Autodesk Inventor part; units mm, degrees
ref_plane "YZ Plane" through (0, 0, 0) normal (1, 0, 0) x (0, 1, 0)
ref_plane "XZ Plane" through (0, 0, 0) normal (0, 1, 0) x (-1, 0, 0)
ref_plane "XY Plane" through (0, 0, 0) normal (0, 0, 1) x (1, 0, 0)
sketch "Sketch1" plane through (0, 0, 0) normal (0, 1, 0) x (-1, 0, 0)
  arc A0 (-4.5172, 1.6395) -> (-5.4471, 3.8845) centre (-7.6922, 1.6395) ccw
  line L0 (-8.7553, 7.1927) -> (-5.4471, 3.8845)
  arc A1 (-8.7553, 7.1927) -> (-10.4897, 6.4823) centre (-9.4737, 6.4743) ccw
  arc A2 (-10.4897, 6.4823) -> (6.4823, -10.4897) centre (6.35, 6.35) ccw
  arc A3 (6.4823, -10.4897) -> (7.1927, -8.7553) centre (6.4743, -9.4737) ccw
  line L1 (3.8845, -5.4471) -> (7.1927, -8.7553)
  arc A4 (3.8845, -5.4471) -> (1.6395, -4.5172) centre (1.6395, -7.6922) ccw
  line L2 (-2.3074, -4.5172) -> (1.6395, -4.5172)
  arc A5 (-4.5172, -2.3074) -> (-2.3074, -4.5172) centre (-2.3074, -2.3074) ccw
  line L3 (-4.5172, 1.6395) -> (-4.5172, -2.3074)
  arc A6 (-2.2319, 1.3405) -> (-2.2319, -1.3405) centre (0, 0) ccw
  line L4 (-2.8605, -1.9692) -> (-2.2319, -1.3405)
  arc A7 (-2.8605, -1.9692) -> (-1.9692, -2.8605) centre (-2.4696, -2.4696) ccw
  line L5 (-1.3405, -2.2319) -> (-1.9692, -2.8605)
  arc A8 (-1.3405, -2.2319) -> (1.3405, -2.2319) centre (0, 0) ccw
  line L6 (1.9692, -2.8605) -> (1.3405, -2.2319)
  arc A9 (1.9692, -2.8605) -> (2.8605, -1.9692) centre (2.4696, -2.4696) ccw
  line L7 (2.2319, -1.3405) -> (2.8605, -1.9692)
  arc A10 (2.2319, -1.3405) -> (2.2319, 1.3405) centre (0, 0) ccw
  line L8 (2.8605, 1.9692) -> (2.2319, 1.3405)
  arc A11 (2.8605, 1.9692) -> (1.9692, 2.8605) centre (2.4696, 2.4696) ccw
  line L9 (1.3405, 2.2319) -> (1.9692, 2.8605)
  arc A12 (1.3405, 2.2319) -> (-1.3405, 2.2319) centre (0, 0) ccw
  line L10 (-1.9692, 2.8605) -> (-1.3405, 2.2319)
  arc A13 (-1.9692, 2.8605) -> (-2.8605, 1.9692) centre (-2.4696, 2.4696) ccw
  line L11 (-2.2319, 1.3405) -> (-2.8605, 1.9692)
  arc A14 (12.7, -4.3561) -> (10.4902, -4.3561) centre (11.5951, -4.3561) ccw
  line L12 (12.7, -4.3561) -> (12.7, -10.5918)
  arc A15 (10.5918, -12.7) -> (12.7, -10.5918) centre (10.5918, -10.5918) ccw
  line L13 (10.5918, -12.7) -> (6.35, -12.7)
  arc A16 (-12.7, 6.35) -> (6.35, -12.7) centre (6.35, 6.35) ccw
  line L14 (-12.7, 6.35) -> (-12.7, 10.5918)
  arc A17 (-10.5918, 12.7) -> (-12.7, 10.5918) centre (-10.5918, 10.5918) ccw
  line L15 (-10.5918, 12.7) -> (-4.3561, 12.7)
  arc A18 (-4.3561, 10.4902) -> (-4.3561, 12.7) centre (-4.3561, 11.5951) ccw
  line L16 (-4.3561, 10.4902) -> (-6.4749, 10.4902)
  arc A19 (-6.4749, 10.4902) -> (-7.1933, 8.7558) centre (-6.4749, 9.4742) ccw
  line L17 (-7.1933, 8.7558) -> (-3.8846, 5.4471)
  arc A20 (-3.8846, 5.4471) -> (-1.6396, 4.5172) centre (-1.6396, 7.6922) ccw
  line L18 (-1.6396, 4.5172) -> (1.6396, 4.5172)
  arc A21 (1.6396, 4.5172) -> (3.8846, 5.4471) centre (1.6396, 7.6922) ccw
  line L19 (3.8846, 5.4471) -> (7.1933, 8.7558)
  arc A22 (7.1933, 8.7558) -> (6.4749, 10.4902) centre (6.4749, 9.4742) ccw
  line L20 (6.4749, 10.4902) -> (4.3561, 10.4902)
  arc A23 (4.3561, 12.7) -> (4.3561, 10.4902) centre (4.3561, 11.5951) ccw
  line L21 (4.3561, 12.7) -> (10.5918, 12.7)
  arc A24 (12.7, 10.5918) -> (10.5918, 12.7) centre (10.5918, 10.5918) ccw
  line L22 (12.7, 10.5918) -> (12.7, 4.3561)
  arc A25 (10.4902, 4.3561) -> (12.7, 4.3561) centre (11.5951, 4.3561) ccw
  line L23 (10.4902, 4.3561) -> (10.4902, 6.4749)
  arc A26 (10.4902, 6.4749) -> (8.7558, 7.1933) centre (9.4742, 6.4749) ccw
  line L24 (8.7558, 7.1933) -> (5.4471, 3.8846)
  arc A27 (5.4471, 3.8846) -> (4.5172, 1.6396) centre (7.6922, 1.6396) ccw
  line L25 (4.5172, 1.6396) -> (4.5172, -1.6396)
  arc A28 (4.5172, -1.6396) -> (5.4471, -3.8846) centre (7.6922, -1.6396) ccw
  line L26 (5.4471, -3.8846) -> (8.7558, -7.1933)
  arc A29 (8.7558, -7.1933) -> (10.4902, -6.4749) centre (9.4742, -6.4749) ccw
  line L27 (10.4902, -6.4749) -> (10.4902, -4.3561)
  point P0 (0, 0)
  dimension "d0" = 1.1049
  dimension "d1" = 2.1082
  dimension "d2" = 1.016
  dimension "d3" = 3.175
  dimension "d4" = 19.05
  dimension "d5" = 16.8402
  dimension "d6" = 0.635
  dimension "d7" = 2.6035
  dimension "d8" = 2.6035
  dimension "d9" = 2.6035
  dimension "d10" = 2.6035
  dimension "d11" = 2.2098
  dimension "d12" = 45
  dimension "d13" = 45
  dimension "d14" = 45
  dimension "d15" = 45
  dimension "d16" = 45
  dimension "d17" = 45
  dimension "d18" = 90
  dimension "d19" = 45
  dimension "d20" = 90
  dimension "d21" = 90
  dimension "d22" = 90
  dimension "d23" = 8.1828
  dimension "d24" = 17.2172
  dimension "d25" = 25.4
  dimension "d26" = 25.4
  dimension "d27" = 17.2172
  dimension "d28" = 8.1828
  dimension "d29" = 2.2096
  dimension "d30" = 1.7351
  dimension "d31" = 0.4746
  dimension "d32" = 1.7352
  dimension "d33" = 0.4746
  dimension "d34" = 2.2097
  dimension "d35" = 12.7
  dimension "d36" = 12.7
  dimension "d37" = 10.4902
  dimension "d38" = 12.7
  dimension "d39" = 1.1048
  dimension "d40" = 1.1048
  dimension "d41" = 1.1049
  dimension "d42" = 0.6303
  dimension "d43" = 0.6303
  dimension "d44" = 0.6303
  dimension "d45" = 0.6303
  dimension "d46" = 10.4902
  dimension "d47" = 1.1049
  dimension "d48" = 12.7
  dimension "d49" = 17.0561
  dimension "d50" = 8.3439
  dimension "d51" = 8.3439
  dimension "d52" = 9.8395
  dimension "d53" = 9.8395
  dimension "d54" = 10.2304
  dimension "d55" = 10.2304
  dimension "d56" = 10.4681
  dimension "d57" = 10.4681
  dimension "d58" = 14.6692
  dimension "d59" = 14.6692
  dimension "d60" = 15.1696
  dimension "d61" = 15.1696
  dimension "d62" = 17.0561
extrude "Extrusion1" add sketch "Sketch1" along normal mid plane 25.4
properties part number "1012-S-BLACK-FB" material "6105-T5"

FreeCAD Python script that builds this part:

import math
import FreeCAD as App
import Part
import Sketcher
Q = App.Units.Quantity

doc = App.newDocument("Part")
params = doc.addObject("Spreadsheet::Sheet", "Params")
for row, (alias, value) in enumerate([
    ("sketch1_radius", "0.04 in"),
    ("sketch1_radius2", "0.75 in"),
    ("sketch1_radius3", "0.125 in"),
    ("sketch1_radius4", "0.083 in"),
    ("sketch1_radius5", "0.087 in"),
    ("pad1_length", "1 in"),
], start=1):
    params.set(f"A{row}", alias)
    params.set(f"B{row}", "=" + value)
    params.setAlias(f"B{row}", alias)

body = doc.addObject("PartDesign::Body", "Body")

sketch1 = body.newObject("Sketcher::SketchObject", "Sketch")
sketch1.AttachmentSupport = (doc.getObject("XZ_Plane"), [""])
sketch1.MapMode = "FlatFace"
sketch1.addGeometry([
    Part.LineSegment(App.Vector(-12.7, -10.6, 0), App.Vector(-12.7, -4.4, 0)),
    Part.ArcOfCircle(Part.Circle(App.Vector(-11.6, -4.4, 0), App.Vector(0, 0, 1), 1.1), math.radians(0), math.radians(180)),
    Part.LineSegment(App.Vector(-10.5, -4.4, 0), App.Vector(-10.5, -6.5, 0)),
    Part.ArcOfCircle(Part.Circle(App.Vector(-9.5, -6.5, 0), App.Vector(0, 0, 1), 1), math.radians(180), math.radians(315)),
    Part.LineSegment(App.Vector(-8.8, -7.2, 0), App.Vector(-5.4, -3.9, 0)),
    Part.ArcOfCircle(Part.Circle(App.Vector(-7.7, -1.6, 0), App.Vector(0, 0, 1), 3.2), math.radians(-45), math.radians(0)),
    Part.LineSegment(App.Vector(-4.5, -1.6, 0), App.Vector(-4.5, 1.6, 0)),
    Part.ArcOfCircle(Part.Circle(App.Vector(-7.7, 1.6, 0), App.Vector(0, 0, 1), 3.2), math.radians(0), math.radians(45)),
    Part.LineSegment(App.Vector(-5.4, 3.9, 0), App.Vector(-8.8, 7.2, 0)),
    Part.ArcOfCircle(Part.Circle(App.Vector(-9.5, 6.5, 0), App.Vector(0, 0, 1), 1), math.radians(45), math.radians(180)),
    Part.LineSegment(App.Vector(-10.5, 6.5, 0), App.Vector(-10.5, 4.4, 0)),
    Part.ArcOfCircle(Part.Circle(App.Vector(-11.6, 4.4, 0), App.Vector(0, 0, 1), 1.1), math.radians(180), math.radians(360)),
    Part.LineSegment(App.Vector(-12.7, 4.4, 0), App.Vector(-12.7, 10.6, 0)),
    Part.ArcOfCircle(Part.Circle(App.Vector(-10.6, 10.6, 0), App.Vector(0, 0, 1), 2.1), math.radians(90), math.radians(180)),
    Part.LineSegment(App.Vector(-10.6, 12.7, 0), App.Vector(-4.4, 12.7, 0)),
    Part.ArcOfCircle(Part.Circle(App.Vector(-4.4, 11.6, 0), App.Vector(0, 0, 1), 1.1), math.radians(-90), math.radians(90)),
    Part.LineSegment(App.Vector(-4.4, 10.5, 0), App.Vector(-6.5, 10.5, 0)),
    Part.ArcOfCircle(Part.Circle(App.Vector(-6.5, 9.5, 0), App.Vector(0, 0, 1), 1), math.radians(90), math.radians(225)),
    Part.LineSegment(App.Vector(-7.2, 8.8, 0), App.Vector(-3.9, 5.4, 0)),
    Part.ArcOfCircle(Part.Circle(App.Vector(-1.6, 7.7, 0), App.Vector(0, 0, 1), 3.2), math.radians(-135), math.radians(-90)),
    Part.LineSegment(App.Vector(-1.6, 4.5, 0), App.Vector(1.6, 4.5, 0)),
    Part.ArcOfCircle(Part.Circle(App.Vector(1.6, 7.7, 0), App.Vector(0, 0, 1), 3.2), math.radians(-90), math.radians(-45)),
    Part.LineSegment(App.Vector(3.9, 5.4, 0), App.Vector(7.2, 8.8, 0)),
    Part.ArcOfCircle(Part.Circle(App.Vector(6.5, 9.5, 0), App.Vector(0, 0, 1), 1), math.radians(-45), math.radians(90)),
    Part.LineSegment(App.Vector(6.5, 10.5, 0), App.Vector(4.4, 10.5, 0)),
    Part.ArcOfCircle(Part.Circle(App.Vector(4.4, 11.6, 0), App.Vector(0, 0, 1), 1.1), math.radians(90), math.radians(270)),
    Part.LineSegment(App.Vector(4.4, 12.7, 0), App.Vector(10.6, 12.7, 0)),
    Part.ArcOfCircle(Part.Circle(App.Vector(10.6, 10.6, 0), App.Vector(0, 0, 1), 2.1), math.radians(0), math.radians(90)),
    Part.LineSegment(App.Vector(12.7, 10.6, 0), App.Vector(12.7, 6.3, 0)),
    Part.ArcOfCircle(Part.Circle(App.Vector(-6.3, 6.3, 0), App.Vector(0, 0, 1), 19), math.radians(-90), math.radians(0)),
    Part.LineSegment(App.Vector(-6.3, -12.7, 0), App.Vector(-10.6, -12.7, 0)),
    Part.ArcOfCircle(Part.Circle(App.Vector(-10.6, -10.6, 0), App.Vector(0, 0, 1), 2.1), math.radians(180), math.radians(270)),
    Part.ArcOfCircle(Part.Circle(App.Vector(7.7, 1.6, 0), App.Vector(0, 0, 1), 3.2), math.radians(135), math.radians(180)),
    Part.LineSegment(App.Vector(4.5, 1.6, 0), App.Vector(4.5, -2.3, 0)),
    Part.ArcOfCircle(Part.Circle(App.Vector(2.3, -2.3, 0), App.Vector(0, 0, 1), 2.2), math.radians(-90), math.radians(0)),
    Part.LineSegment(App.Vector(2.3, -4.5, 0), App.Vector(-1.6, -4.5, 0)),
    Part.ArcOfCircle(Part.Circle(App.Vector(-1.6, -7.7, 0), App.Vector(0, 0, 1), 3.2), math.radians(90), math.radians(135)),
    Part.LineSegment(App.Vector(-3.9, -5.4, 0), App.Vector(-7.2, -8.8, 0)),
    Part.ArcOfCircle(Part.Circle(App.Vector(-6.5, -9.5, 0), App.Vector(0, 0, 1), 1), math.radians(135), math.radians(270)),
    Part.ArcOfCircle(Part.Circle(App.Vector(-6.3, 6.3, 0), App.Vector(0, 0, 1), 16.8), math.radians(-90), math.radians(0)),
    Part.ArcOfCircle(Part.Circle(App.Vector(9.5, 6.5, 0), App.Vector(0, 0, 1), 1), math.radians(0), math.radians(135)),
    Part.LineSegment(App.Vector(8.8, 7.2, 0), App.Vector(5.4, 3.9, 0)),
    Part.ArcOfCircle(Part.Circle(App.Vector(0, 0, 0), App.Vector(0, 0, 1), 2.6), math.radians(-31), math.radians(31)),
    Part.LineSegment(App.Vector(2.2, 1.3, 0), App.Vector(2.9, 2, 0)),
    Part.ArcOfCircle(Part.Circle(App.Vector(2.5, 2.5, 0), App.Vector(0, 0, 1), 0.6), math.radians(-52), math.radians(142)),
    Part.LineSegment(App.Vector(2, 2.9, 0), App.Vector(1.3, 2.2, 0)),
    Part.ArcOfCircle(Part.Circle(App.Vector(0, 0, 0), App.Vector(0, 0, 1), 2.6), math.radians(59), math.radians(121)),
    Part.LineSegment(App.Vector(-1.3, 2.2, 0), App.Vector(-2, 2.9, 0)),
    Part.ArcOfCircle(Part.Circle(App.Vector(-2.5, 2.5, 0), App.Vector(0, 0, 1), 0.6), math.radians(38), math.radians(232)),
    Part.LineSegment(App.Vector(-2.9, 2, 0), App.Vector(-2.2, 1.3, 0)),
    Part.ArcOfCircle(Part.Circle(App.Vector(0, 0, 0), App.Vector(0, 0, 1), 2.6), math.radians(149), math.radians(211)),
    Part.LineSegment(App.Vector(-2.2, -1.3, 0), App.Vector(-2.9, -2, 0)),
    Part.ArcOfCircle(Part.Circle(App.Vector(-2.5, -2.5, 0), App.Vector(0, 0, 1), 0.6), math.radians(128), math.radians(322)),
    Part.LineSegment(App.Vector(-2, -2.9, 0), App.Vector(-1.3, -2.2, 0)),
    Part.ArcOfCircle(Part.Circle(App.Vector(0, 0, 0), App.Vector(0, 0, 1), 2.6), math.radians(-121), math.radians(-59)),
    Part.LineSegment(App.Vector(1.3, -2.2, 0), App.Vector(2, -2.9, 0)),
    Part.ArcOfCircle(Part.Circle(App.Vector(2.5, -2.5, 0), App.Vector(0, 0, 1), 0.6), math.radians(-142), math.radians(52)),
    Part.LineSegment(App.Vector(2.9, -2, 0), App.Vector(2.2, -1.3, 0)),
], False)
sketch1.addConstraint([
    Sketcher.Constraint("Tangent", 0, 2, 1, 2),
    Sketcher.Constraint("Tangent", 1, 1, 2, 1),
    Sketcher.Constraint("Tangent", 2, 2, 3, 1),
    Sketcher.Constraint("Tangent", 3, 2, 4, 1),
    Sketcher.Constraint("Tangent", 4, 2, 5, 1),
    Sketcher.Constraint("Tangent", 5, 2, 6, 1),
    Sketcher.Constraint("Tangent", 6, 2, 7, 1),
    Sketcher.Constraint("Tangent", 7, 2, 8, 1),
    Sketcher.Constraint("Tangent", 8, 2, 9, 1),
    Sketcher.Constraint("Tangent", 9, 2, 10, 1),
    Sketcher.Constraint("Tangent", 10, 2, 11, 2),
    Sketcher.Constraint("Tangent", 11, 1, 12, 1),
    Sketcher.Constraint("Tangent", 12, 2, 13, 2),
    Sketcher.Constraint("Tangent", 13, 1, 14, 1),
    Sketcher.Constraint("Tangent", 14, 2, 15, 2),
    Sketcher.Constraint("Tangent", 15, 1, 16, 1),
    Sketcher.Constraint("Tangent", 16, 2, 17, 1),
    Sketcher.Constraint("Tangent", 17, 2, 18, 1),
    Sketcher.Constraint("Tangent", 18, 2, 19, 1),
    Sketcher.Constraint("Tangent", 19, 2, 20, 1),
    Sketcher.Constraint("Tangent", 20, 2, 21, 1),
    Sketcher.Constraint("Tangent", 21, 2, 22, 1),
    Sketcher.Constraint("Tangent", 22, 2, 23, 1),
    Sketcher.Constraint("Tangent", 23, 2, 24, 1),
    Sketcher.Constraint("Tangent", 24, 2, 25, 2),
    Sketcher.Constraint("Tangent", 25, 1, 26, 1),
    Sketcher.Constraint("Tangent", 26, 2, 27, 2),
    Sketcher.Constraint("Tangent", 27, 1, 28, 1),
    Sketcher.Constraint("Tangent", 28, 2, 29, 2),
    Sketcher.Constraint("Tangent", 29, 1, 30, 1),
    Sketcher.Constraint("Tangent", 30, 2, 31, 2),
    Sketcher.Constraint("Tangent", 31, 1, 0, 1),
    Sketcher.Constraint("Tangent", 32, 2, 33, 1),
    Sketcher.Constraint("Tangent", 33, 2, 34, 2),
    Sketcher.Constraint("Tangent", 34, 1, 35, 1),
    Sketcher.Constraint("Tangent", 35, 2, 36, 1),
    Sketcher.Constraint("Tangent", 36, 2, 37, 1),
    Sketcher.Constraint("Tangent", 37, 2, 38, 1),
    Sketcher.Constraint("Tangent", 38, 2, 39, 1),
    Sketcher.Constraint("Tangent", 39, 2, 40, 1),
    Sketcher.Constraint("Tangent", 40, 2, 41, 1),
    Sketcher.Constraint("Tangent", 41, 2, 32, 1),
    Sketcher.Constraint("Coincident", 42, 2, 43, 1),
    Sketcher.Constraint("Coincident", 43, 2, 44, 1),
    Sketcher.Constraint("Coincident", 44, 2, 45, 1),
    Sketcher.Constraint("Coincident", 45, 2, 46, 1),
    Sketcher.Constraint("Coincident", 46, 2, 47, 1),
    Sketcher.Constraint("Coincident", 47, 2, 48, 1),
    Sketcher.Constraint("Coincident", 48, 2, 49, 1),
    Sketcher.Constraint("Coincident", 49, 2, 50, 1),
    Sketcher.Constraint("Coincident", 50, 2, 51, 1),
    Sketcher.Constraint("Coincident", 51, 2, 52, 1),
    Sketcher.Constraint("Coincident", 52, 2, 53, 1),
    Sketcher.Constraint("Coincident", 53, 2, 54, 1),
    Sketcher.Constraint("Coincident", 54, 2, 55, 1),
    Sketcher.Constraint("Coincident", 55, 2, 56, 1),
    Sketcher.Constraint("Coincident", 56, 2, 57, 1),
    Sketcher.Constraint("Coincident", 57, 2, 42, 1),
    Sketcher.Constraint("Vertical", 0),
    Sketcher.Constraint("Vertical", 2),
    Sketcher.Constraint("Vertical", 6),
    Sketcher.Constraint("Vertical", 10),
    Sketcher.Constraint("Vertical", 12),
    Sketcher.Constraint("Horizontal", 14),
    Sketcher.Constraint("Horizontal", 16),
    Sketcher.Constraint("Horizontal", 20),
    Sketcher.Constraint("Horizontal", 24),
    Sketcher.Constraint("Horizontal", 26),
    Sketcher.Constraint("Vertical", 28),
    Sketcher.Constraint("Horizontal", 30),
    Sketcher.Constraint("Vertical", 33),
    Sketcher.Constraint("Horizontal", 35),
    Sketcher.Constraint("Coincident", 42, 3, -1, 1),
    Sketcher.Constraint("Coincident", 46, 3, -1, 1),
    Sketcher.Constraint("Coincident", 50, 3, -1, 1),
    Sketcher.Constraint("Coincident", 54, 3, -1, 1),
    Sketcher.Constraint("Coincident", 39, 3, 29, 3),
    Sketcher.Constraint("Equal", 5, 7),
    Sketcher.Constraint("Equal", 3, 9),
    Sketcher.Constraint("Equal", 1, 11),
    Sketcher.Constraint("Equal", 11, 15),
    Sketcher.Constraint("Equal", 9, 17),
    Sketcher.Constraint("Equal", 7, 19),
    Sketcher.Constraint("Equal", 19, 21),
    Sketcher.Constraint("Equal", 17, 23),
    Sketcher.Constraint("Equal", 15, 25),
    Sketcher.Constraint("Equal", 13, 27),
    Sketcher.Constraint("Equal", 27, 31),
    Sketcher.Constraint("Equal", 21, 32),
    Sketcher.Constraint("Equal", 32, 36),
    Sketcher.Constraint("Equal", 23, 38),
    Sketcher.Constraint("Equal", 38, 40),
    Sketcher.Constraint("Equal", 42, 46),
    Sketcher.Constraint("Equal", 44, 48),
    Sketcher.Constraint("Equal", 46, 50),
    Sketcher.Constraint("Equal", 48, 52),
    Sketcher.Constraint("Equal", 50, 54),
    Sketcher.Constraint("Equal", 52, 56),
    Sketcher.Constraint("Symmetric", 27, 3, 31, 3, -1, 1),
    Sketcher.Constraint("Symmetric", 5, 3, 32, 3, -1, 1),
    Sketcher.Constraint("Symmetric", 21, 3, 36, 3, -1, 1),
    Sketcher.Constraint("Symmetric", 44, 3, 52, 3, -1, 1),
    Sketcher.Constraint("Symmetric", 48, 3, 56, 3, -1, 1),
    Sketcher.Constraint("Symmetric", 17, 3, 23, 3, -2),
    Sketcher.Constraint("Symmetric", 44, 3, 48, 3, -2),
    Sketcher.Constraint("Symmetric", 7, 2, 41, 2, -2),
    Sketcher.Constraint("Symmetric", 3, 3, 9, 3, -1),
    Sketcher.Constraint("Symmetric", 18, 2, 36, 2, -1),
    Sketcher.Constraint("Perpendicular", 4, 8),
    Sketcher.Constraint("Parallel", 8, 18),
    Sketcher.Constraint("Parallel", 41, 43),
    Sketcher.Constraint("Parallel", 43, 45),
    Sketcher.Constraint("Perpendicular", 45, 47),
    Sketcher.Constraint("Parallel", 47, 49),
    Sketcher.Constraint("Perpendicular", 49, 51),
    Sketcher.Constraint("Parallel", 51, 53),
    Sketcher.Constraint("Perpendicular", 53, 55),
    Sketcher.Constraint("Parallel", 55, 57),
    Sketcher.Constraint("Horizontal", 45, 2, 46, 2),
    Sketcher.Constraint("Horizontal", 43, 2, 48, 2),
    Sketcher.Constraint("Horizontal", 53, 2, 54, 2),
    Sketcher.Constraint("Horizontal", 51, 2, 56, 2),
    Sketcher.Constraint("Vertical", 49, 2, 50, 2),
    Sketcher.Constraint("Vertical", 47, 2, 52, 2),
    Sketcher.Constraint("Equal", 16, 24),
    Sketcher.Constraint("Equal", 26, 0),
    Sketcher.Constraint("Equal", 24, 2),
    Sketcher.Constraint("Equal", 20, 6),
    Sketcher.Constraint("Equal", 2, 10),
    Sketcher.Constraint("Equal", 30, 28),
    Sketcher.Constraint("Equal", 43, 45),
    Sketcher.Constraint("Radius", 3, Q("0.04 in")),
    Sketcher.Constraint("Radius", 29, Q("0.75 in")),
    Sketcher.Constraint("Radius", 5, Q("0.125 in")),
    Sketcher.Constraint("Radius", 13, Q("0.083 in")),
    Sketcher.Constraint("Radius", 34, Q("0.087 in")),
    Sketcher.Constraint("Radius", 39, Q("0.663 in")),
    Sketcher.Constraint("Radius", 44, Q("0.025 in")),
    Sketcher.Constraint("DistanceX", 0, 2, -1, 1, Q("0.5 in")),
    Sketcher.Constraint("Radius", 1, Q("0.0435 in")),
    Sketcher.Constraint("Radius", 42, Q("0.1025 in")),
    Sketcher.Constraint("Distance", 43, Q("0.035 in")),
    Sketcher.Constraint("DistanceX", 14, 1, 14, 2, Q("0.2455 in")),
    Sketcher.Constraint("DistanceX", 20, 1, 20, 2, Q("0.1291 in")),
    Sketcher.Constraint("DistanceX", 35, 2, 35, 1, Q("0.1554 in")),
    Sketcher.Constraint("DistanceX", -1, 1, 44, 3, 2.4696),
    Sketcher.Constraint("DistanceY", -1, 1, 44, 3, 2.4696),
])
sketch1.setExpression("Constraints[131]", "Params.sketch1_radius")
sketch1.setExpression("Constraints[132]", "Params.sketch1_radius2")
sketch1.setExpression("Constraints[133]", "Params.sketch1_radius3")
sketch1.setExpression("Constraints[134]", "Params.sketch1_radius4")
sketch1.setExpression("Constraints[135]", "Params.sketch1_radius5")
pad1 = body.newObject("PartDesign::Pad", "Pad")
pad1.Profile = sketch1
pad1.setExpression("Length", "Params.pad1_length")
pad1.Midplane = True

doc.recompute()
